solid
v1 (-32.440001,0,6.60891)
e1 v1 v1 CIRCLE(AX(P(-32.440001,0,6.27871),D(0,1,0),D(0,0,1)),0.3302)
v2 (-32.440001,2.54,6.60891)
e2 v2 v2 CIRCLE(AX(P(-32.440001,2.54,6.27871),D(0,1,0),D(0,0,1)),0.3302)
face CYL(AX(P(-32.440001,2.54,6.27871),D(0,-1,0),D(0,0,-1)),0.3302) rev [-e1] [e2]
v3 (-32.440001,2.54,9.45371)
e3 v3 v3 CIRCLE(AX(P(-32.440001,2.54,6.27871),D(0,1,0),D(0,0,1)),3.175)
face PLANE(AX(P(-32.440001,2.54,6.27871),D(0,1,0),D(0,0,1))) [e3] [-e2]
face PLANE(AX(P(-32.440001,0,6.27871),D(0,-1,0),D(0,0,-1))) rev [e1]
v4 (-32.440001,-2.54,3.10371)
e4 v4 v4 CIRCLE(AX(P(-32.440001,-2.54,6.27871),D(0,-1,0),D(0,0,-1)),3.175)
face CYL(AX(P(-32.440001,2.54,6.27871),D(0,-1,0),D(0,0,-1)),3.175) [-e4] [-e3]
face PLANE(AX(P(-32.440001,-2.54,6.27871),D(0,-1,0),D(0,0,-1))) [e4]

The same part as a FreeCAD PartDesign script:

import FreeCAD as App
import Part
import Sketcher
Q = App.Units.Quantity

doc = App.newDocument("Part")
body = doc.addObject("PartDesign::Body", "Body")

# Sketch on XZ plane
sketch1 = body.newObject("Sketcher::SketchObject", "Sketch")
sketch1.AttachmentSupport = (doc.getObject("XZ_Plane"), [""])
sketch1.MapMode = "FlatFace"
sketch1.addGeometry(Part.Circle(App.Vector(-32.440001, 6.27871, 0), App.Vector(0, 0, 1), 3.175), False)
sketch1.addGeometry(Part.Circle(App.Vector(-32.440001, 6.27871, 0), App.Vector(0, 0, 1), 0.3302), False)
sketch1.addConstraint(Sketcher.Constraint("Coincident", 1, 3, 0, 3))
sketch1.addConstraint(Sketcher.Constraint("Diameter", 0, Q("0.25 in")))
sketch1.addConstraint(Sketcher.Constraint("Diameter", 1, Q("0.026 in")))
sketch1.addConstraint(Sketcher.Constraint("DistanceX", 0, 3, -1, 1, 32.440001))
sketch1.addConstraint(Sketcher.Constraint("DistanceY", -1, 1, 0, 3, 6.27871))
pad1 = body.newObject("PartDesign::Pad", "Pad")
pad1.Profile = sketch1
pad1.Length = Q("0.1 in")
pad1.Reversed = True

# Sketch on XZ plane
sketch2 = body.newObject("Sketcher::SketchObject", "Sketch001")
sketch2.AttachmentSupport = (doc.getObject("XZ_Plane"), [""])
sketch2.MapMode = "FlatFace"
sketch2.addGeometry(Part.Circle(App.Vector(-32.440001, 6.27871, 0), App.Vector(0, 0, 1), 3.175), False)
sketch2.addConstraint(Sketcher.Constraint("Diameter", 0, Q("0.25 in")))
sketch2.addConstraint(Sketcher.Constraint("DistanceX", 0, 3, -1, 1, 32.440001))
sketch2.addConstraint(Sketcher.Constraint("DistanceY", -1, 1, 0, 3, 6.27871))
pad2 = body.newObject("PartDesign::Pad", "Pad001")
pad2.Profile = sketch2
pad2.Length = Q("0.1 in")

doc.recompute()
